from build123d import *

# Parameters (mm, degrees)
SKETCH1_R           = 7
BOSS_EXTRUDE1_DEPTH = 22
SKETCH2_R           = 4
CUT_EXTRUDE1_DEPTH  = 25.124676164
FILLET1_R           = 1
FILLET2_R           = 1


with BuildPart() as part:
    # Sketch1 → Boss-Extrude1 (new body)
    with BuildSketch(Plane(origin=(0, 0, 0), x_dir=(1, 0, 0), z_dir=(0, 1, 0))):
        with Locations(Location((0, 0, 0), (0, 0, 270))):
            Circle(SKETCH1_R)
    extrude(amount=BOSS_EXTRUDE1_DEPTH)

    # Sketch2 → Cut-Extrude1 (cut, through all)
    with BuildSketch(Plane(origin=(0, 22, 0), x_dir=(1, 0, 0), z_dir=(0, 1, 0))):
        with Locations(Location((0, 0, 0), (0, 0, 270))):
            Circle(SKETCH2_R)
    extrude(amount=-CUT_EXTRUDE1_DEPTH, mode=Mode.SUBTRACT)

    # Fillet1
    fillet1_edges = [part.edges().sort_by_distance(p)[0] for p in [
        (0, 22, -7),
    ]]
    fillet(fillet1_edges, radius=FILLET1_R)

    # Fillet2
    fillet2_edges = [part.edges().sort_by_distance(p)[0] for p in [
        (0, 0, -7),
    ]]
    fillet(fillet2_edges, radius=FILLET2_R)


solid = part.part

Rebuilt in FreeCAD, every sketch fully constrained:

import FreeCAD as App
import Part
import Sketcher

V = App.Vector


def edges_at(feature, points):
    """Names of the edges that pass closest to the given points."""
    edges = feature.Shape.Edges
    near = lambda p: min(range(len(edges)), key=lambda i: edges[i].distToShape(Part.Vertex(*p))[0])
    return sorted({f"Edge{near(p) + 1}" for p in points})

doc = App.newDocument("Part")
body = doc.addObject("PartDesign::Body", "Body")

# Sketch on XZ plane
sketch1 = doc.addObject("Sketcher::SketchObject", "Sketch")
body.addObject(sketch1)
sketch1.AttachmentSupport = (doc.XZ_Plane, [""])
sketch1.MapMode = "FlatFace"
sketch1.addGeometry(Part.Circle(V(0, 0, 0), V(0, 0, 1), 7), False)
sketch1.addConstraint(Sketcher.Constraint("Coincident", 0, 3, -1, 1))
sketch1.addConstraint(Sketcher.Constraint("Diameter", 0, 14.0))
pad1 = doc.addObject("PartDesign::Pad", "Pad")
body.addObject(pad1)
pad1.Profile = sketch1
pad1.Length = 22
pad1.Reversed = True

# Sketch on XZ plane
sketch2 = doc.addObject("Sketcher::SketchObject", "Sketch001")
body.addObject(sketch2)
sketch2.AttachmentSupport = (doc.XZ_Plane, [""])
sketch2.MapMode = "FlatFace"
sketch2.AttachmentOffset = App.Placement(V(0, 0, -22), App.Rotation())
sketch2.addGeometry(Part.Circle(V(0, 0, 0), V(0, 0, 1), 4), False)
sketch2.addConstraint(Sketcher.Constraint("Coincident", 0, 3, -1, 1))
sketch2.addConstraint(Sketcher.Constraint("Diameter", 0, 8.0))
pocket1 = doc.addObject("PartDesign::Pocket", "Pocket")
body.addObject(pocket1)
pocket1.Profile = sketch2
pocket1.Type = "ThroughAll"
pocket1.Reversed = True
doc.recompute()

fillet = doc.addObject("PartDesign::Fillet", "Fillet")
body.addObject(fillet)
fillet.Base = (pocket1, edges_at(pocket1, [(0, 22, -7)]))
fillet.Radius = 1
doc.recompute()

fillet2 = doc.addObject("PartDesign::Fillet", "Fillet001")
body.addObject(fillet2)
fillet2.Base = (fillet, edges_at(fillet, [(0, 0, -7)]))
fillet2.Radius = 1

doc.recompute()
